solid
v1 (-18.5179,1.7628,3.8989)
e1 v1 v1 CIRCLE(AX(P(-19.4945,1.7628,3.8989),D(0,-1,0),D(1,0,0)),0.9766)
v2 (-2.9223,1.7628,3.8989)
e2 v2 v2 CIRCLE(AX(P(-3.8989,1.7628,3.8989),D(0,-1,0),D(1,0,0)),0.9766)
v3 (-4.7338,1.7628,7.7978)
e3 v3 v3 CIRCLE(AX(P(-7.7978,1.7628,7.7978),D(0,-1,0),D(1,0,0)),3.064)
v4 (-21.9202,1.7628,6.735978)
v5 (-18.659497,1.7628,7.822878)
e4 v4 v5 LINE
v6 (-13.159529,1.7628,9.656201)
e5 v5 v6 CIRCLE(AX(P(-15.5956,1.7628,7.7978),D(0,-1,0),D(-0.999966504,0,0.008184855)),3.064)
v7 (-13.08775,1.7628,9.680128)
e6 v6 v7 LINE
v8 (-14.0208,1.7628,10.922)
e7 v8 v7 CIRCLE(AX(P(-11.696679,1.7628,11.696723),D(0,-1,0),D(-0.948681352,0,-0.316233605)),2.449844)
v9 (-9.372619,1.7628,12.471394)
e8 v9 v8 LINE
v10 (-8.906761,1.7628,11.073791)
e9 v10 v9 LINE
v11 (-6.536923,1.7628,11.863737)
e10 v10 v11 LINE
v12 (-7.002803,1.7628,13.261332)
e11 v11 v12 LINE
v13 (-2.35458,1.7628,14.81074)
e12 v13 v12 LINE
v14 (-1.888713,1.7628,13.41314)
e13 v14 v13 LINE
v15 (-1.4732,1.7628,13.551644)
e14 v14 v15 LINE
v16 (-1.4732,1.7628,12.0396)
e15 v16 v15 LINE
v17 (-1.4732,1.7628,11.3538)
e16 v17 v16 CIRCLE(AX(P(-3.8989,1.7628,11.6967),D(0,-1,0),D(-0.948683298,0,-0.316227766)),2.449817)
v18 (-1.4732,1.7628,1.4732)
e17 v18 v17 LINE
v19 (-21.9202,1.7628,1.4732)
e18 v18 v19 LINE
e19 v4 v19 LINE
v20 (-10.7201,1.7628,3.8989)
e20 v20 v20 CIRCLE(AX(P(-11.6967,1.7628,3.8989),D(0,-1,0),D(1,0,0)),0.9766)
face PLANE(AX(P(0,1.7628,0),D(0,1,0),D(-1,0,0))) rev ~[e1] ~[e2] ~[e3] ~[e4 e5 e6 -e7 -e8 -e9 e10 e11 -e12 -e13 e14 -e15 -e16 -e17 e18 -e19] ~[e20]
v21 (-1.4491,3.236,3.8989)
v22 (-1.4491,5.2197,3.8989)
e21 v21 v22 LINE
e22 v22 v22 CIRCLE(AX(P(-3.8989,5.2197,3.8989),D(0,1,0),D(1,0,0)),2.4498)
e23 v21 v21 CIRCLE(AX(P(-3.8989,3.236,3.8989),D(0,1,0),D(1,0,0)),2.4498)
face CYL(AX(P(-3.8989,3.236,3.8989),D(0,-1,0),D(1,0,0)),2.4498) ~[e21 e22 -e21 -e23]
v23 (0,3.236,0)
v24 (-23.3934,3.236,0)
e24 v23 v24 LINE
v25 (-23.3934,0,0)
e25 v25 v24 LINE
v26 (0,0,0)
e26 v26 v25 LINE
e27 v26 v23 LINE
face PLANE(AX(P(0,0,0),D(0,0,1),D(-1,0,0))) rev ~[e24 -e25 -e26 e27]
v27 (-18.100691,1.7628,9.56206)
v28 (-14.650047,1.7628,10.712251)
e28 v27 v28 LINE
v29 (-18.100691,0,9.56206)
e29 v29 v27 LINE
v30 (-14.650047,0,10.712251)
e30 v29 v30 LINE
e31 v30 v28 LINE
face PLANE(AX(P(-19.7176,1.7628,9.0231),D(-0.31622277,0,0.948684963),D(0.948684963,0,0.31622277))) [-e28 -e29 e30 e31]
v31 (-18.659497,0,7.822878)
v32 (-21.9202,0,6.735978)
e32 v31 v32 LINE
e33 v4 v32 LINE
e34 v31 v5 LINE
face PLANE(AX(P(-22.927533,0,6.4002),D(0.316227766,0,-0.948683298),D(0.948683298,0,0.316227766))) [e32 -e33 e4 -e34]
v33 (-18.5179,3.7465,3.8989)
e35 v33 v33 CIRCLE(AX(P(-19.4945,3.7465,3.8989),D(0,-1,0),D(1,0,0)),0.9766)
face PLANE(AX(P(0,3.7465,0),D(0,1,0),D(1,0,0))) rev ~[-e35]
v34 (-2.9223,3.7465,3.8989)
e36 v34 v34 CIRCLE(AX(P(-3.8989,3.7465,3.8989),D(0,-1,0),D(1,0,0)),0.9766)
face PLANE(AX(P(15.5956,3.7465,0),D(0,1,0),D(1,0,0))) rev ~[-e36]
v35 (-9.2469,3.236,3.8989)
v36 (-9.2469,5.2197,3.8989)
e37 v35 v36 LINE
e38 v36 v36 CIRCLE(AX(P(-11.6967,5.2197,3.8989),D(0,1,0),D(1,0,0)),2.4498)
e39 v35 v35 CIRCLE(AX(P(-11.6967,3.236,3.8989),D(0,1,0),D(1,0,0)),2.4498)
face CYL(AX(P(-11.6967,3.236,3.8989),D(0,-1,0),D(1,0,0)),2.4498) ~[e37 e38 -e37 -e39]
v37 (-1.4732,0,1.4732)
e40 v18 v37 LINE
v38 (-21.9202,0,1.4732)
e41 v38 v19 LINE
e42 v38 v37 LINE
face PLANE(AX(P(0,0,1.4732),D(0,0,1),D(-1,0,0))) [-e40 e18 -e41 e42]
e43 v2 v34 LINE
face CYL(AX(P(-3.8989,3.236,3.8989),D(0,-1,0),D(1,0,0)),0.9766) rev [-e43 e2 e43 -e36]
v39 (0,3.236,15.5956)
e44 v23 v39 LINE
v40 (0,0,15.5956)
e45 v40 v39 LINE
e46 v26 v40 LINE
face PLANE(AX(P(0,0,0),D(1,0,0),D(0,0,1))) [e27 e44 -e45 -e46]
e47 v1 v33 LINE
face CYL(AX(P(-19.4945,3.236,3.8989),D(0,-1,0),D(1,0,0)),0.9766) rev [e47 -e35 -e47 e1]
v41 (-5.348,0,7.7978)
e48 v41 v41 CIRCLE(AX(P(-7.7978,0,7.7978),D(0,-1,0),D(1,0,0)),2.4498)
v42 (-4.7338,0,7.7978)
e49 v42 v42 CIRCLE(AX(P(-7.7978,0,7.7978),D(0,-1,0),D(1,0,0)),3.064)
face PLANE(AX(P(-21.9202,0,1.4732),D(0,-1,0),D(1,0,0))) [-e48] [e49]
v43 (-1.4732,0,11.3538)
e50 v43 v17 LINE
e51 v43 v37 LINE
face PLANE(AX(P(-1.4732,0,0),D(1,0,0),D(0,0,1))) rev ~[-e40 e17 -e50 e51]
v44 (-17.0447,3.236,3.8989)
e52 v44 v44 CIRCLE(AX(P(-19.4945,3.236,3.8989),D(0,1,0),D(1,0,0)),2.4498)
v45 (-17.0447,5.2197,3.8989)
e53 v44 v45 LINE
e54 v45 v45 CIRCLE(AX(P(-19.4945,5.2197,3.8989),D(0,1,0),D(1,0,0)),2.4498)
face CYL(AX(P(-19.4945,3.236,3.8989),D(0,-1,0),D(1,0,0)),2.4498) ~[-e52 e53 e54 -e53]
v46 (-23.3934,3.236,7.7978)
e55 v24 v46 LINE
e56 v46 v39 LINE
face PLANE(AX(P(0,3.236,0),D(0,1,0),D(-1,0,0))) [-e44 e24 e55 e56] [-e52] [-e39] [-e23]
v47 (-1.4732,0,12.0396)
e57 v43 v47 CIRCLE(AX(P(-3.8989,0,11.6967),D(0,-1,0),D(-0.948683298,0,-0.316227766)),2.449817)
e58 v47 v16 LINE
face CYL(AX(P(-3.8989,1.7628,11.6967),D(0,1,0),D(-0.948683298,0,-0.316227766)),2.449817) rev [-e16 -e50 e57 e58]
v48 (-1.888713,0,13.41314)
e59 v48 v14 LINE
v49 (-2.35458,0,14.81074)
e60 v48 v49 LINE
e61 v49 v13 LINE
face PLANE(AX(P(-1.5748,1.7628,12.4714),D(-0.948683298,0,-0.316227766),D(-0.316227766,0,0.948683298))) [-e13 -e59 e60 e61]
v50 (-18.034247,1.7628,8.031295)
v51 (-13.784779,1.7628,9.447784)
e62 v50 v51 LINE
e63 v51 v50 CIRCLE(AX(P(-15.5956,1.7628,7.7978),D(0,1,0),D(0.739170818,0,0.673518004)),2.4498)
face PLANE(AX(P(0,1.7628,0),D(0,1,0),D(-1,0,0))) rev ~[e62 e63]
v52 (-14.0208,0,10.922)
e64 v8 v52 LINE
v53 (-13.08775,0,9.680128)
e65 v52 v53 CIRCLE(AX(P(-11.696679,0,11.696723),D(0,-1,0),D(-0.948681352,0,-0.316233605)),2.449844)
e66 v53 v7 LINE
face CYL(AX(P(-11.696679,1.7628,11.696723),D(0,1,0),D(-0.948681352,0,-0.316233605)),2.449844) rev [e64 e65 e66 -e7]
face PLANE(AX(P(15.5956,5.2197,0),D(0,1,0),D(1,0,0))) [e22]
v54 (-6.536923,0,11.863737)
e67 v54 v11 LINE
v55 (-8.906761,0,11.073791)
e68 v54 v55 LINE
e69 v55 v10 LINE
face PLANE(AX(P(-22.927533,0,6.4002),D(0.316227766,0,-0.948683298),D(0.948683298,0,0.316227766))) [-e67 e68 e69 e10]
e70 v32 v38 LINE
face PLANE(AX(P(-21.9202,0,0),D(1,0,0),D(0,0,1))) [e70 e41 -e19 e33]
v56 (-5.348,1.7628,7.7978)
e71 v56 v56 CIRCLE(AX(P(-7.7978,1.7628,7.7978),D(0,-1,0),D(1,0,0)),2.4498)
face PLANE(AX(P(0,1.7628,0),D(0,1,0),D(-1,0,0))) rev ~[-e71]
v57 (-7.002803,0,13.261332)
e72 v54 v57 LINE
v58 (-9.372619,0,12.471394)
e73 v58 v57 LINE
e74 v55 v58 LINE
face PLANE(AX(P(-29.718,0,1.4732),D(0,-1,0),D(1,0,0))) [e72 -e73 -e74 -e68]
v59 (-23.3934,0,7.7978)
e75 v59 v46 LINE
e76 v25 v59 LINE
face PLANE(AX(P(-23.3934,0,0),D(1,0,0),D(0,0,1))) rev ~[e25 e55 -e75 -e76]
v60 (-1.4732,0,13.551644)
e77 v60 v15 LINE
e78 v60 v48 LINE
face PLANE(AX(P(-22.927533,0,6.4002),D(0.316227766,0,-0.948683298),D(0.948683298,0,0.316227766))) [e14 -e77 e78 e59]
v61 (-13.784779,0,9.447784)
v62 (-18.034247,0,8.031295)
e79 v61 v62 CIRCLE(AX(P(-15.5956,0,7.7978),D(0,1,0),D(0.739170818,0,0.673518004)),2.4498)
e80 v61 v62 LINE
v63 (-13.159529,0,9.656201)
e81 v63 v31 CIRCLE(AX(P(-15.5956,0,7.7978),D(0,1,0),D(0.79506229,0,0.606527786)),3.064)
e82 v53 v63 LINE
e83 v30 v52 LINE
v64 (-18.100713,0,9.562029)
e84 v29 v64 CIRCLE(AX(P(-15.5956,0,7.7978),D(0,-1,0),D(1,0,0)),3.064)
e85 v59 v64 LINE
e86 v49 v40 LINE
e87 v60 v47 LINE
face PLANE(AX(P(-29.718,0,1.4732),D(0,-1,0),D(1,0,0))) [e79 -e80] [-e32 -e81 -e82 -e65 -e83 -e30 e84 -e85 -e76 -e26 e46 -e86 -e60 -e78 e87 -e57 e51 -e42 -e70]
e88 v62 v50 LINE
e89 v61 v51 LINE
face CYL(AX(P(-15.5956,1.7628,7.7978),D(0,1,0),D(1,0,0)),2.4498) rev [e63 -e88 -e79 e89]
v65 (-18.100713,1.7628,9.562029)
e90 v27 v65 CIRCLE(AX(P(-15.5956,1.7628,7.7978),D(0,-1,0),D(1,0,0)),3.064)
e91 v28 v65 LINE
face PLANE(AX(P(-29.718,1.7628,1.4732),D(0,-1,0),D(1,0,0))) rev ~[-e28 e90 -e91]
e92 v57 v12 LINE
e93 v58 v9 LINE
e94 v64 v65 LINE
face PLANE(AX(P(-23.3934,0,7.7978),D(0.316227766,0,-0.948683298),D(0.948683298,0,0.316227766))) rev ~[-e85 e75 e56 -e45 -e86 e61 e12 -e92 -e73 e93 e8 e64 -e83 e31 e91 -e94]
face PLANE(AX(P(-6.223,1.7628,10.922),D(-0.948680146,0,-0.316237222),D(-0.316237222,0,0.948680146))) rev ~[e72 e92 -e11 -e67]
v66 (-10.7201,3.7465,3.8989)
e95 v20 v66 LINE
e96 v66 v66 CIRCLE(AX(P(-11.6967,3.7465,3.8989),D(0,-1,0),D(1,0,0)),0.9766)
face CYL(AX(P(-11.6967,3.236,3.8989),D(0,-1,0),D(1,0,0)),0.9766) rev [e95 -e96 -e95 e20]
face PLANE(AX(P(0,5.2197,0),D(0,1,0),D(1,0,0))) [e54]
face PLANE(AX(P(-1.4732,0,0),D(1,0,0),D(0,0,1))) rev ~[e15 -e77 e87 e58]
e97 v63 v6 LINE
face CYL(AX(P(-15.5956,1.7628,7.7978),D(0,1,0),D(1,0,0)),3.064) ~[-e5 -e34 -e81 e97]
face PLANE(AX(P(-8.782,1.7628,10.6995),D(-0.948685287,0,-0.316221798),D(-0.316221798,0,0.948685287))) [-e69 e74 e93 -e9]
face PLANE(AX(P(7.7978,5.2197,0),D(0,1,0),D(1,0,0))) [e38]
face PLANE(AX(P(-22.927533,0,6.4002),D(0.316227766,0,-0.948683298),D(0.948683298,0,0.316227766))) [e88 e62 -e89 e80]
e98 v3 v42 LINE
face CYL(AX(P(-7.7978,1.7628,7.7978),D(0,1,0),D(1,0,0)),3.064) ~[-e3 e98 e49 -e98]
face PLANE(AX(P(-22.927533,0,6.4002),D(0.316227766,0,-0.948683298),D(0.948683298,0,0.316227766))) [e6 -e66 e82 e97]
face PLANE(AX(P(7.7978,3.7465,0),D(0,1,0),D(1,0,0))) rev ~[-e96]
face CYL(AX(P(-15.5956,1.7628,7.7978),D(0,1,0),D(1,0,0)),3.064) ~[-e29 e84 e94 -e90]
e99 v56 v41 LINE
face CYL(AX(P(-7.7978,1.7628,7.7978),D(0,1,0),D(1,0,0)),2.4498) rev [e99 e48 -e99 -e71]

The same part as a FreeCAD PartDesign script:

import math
import FreeCAD as App
import Part
import Sketcher
from FreeCAD import Vector
Q = App.Units.Quantity


def faces_at(feature, points):
    """Names of the faces that lie closest to the given points."""
    faces = feature.Shape.Faces
    near = lambda p: min(range(len(faces)), key=lambda i: faces[i].distToShape(Part.Vertex(*p))[0])
    return sorted({f"Face{near(p) + 1}" for p in points})


def add_polygon(sketch, points):
    """Adds a closed chain of lines whose ends are joined by coincident constraints."""
    first, n = sketch.GeometryCount, len(points)
    for a, b in zip(points, points[1:] + points[:1]):
        sketch.addGeometry(Part.LineSegment(App.Vector(*a, 0), App.Vector(*b, 0)), False)
    for i in range(n):
        sketch.addConstraint(Sketcher.Constraint("Coincident", first + i, 2, first + (i + 1) % n, 1))

doc = App.newDocument("Part")
body = doc.addObject("PartDesign::Body", "Body")

# Sketch on XZ plane
sketch1 = body.newObject("Sketcher::SketchObject", "Sketch")
sketch1.AttachmentSupport = (doc.getObject("XZ_Plane"), [""])
sketch1.MapMode = "FlatFace"
add_polygon(sketch1, [(0, 16), (0, 0), (-23, 0), (-23, 8)])  # lines 0-3
sketch1.addConstraint([
    Sketcher.Constraint("Vertical", 0),
    Sketcher.Constraint("Horizontal", 1),
    Sketcher.Constraint("Vertical", 2),
    Sketcher.Constraint("Coincident", 0, 2, -1, 1),
    Sketcher.Constraint("DistanceX", 1, 2, 1, 1, Q("0.921 in")),
    Sketcher.Constraint("DistanceY", 0, 2, 0, 1, Q("0.614 in")),
    Sketcher.Constraint("DistanceY", 2, 1, 2, 2, Q("0.307 in")),
])
pad1 = body.newObject("PartDesign::Pad", "Pad")
pad1.Profile = sketch1
pad1.Length = Q("0.1274016 in")
pad1.Reversed = True

# Sketch on XZ plane
sketch2 = body.newObject("Sketcher::SketchObject", "Sketch001")
sketch2.AttachmentSupport = (doc.getObject("XZ_Plane"), [""])
sketch2.MapMode = "FlatFace"
sketch2.AttachmentOffset = App.Placement(Vector(0, 0, -0.1274016 * 25.4), App.Rotation())
sketch2.addGeometry(Part.Circle(Vector(-19.5, 3.9, 0), Vector(0, 0, 1), 2.4), False)
sketch2.addConstraint([
    Sketcher.Constraint("Diameter", 0, Q("0.1929 in")),
    Sketcher.Constraint("DistanceY", -1, 1, 0, 3, Q("0.1535 in")),
    Sketcher.Constraint("DistanceX", 0, 3, -1, 1, Q("0.7675 in")),
])
pad2 = body.newObject("PartDesign::Pad", "Pad001")
pad2.Profile = sketch2
pad2.Length = Q("0.0780984 in")
pad2.Reversed = True
doc.recompute()

linearpattern = body.newObject("PartDesign::LinearPattern", "LinearPattern")
linearpattern.Originals = [pad2]
linearpattern.Direction = (doc.getObject("X_Axis"), [""])
linearpattern.Mode = "offset"
linearpattern.Offset = Q("0.307 in")
linearpattern.Occurrences = 3
body.Tip = linearpattern
doc.recompute()

thickness = body.newObject("PartDesign::Thickness", "Thickness")
thickness.Base = (linearpattern, faces_at(linearpattern, [(-7.798, 0, 7.798)]))
thickness.Value = Q("0.058 in")
thickness.Reversed = True
thickness.Join = "Intersection"

# Sketch on XZ plane
sketch3 = body.newObject("Sketcher::SketchObject", "Sketch002")
sketch3.AttachmentSupport = (doc.getObject("XZ_Plane"), [""])
sketch3.MapMode = "FlatFace"
sketch3.AttachmentOffset = App.Placement(Vector(0, 0, -0.0694016 * 25.4), App.Rotation())
sketch3.addGeometry([
    Part.Circle(Vector(-7.8, 7.8, 0), Vector(0, 0, 1), 3.1),
    Part.Circle(Vector(-7.8, 7.8, 0), Vector(0, 0, 1), 2.4),
], False)
sketch3.addConstraint([
    Sketcher.Constraint("Coincident", 1, 3, 0, 3),
    Sketcher.Constraint("Diameter", 1, Q("0.1929 in")),
    Sketcher.Constraint("DistanceX", 0, 3, -1, 1, Q("0.307 in")),
    Sketcher.Constraint("DistanceY", -1, 1, 0, 3, Q("0.307 in")),
    Sketcher.Constraint("Diameter", 0, Q("6.128 mm")),
])
pad3 = body.newObject("PartDesign::Pad", "Pad002")
pad3.Profile = sketch3
pad3.Length = Q("0.0694016 in")
doc.recompute()

linearpattern2 = body.newObject("PartDesign::LinearPattern", "LinearPattern001")
linearpattern2.Originals = [pad3]
linearpattern2.Direction = (doc.getObject("X_Axis"), [""])
linearpattern2.Mode = "offset"
linearpattern2.Offset = Q("0.307 in")
linearpattern2.Occurrences = 2
linearpattern2.Reversed = True
body.Tip = linearpattern2

# Sketch on XZ plane
sketch4 = body.newObject("Sketcher::SketchObject", "Sketch003")
sketch4.AttachmentSupport = (doc.getObject("XZ_Plane"), [""])
sketch4.MapMode = "FlatFace"
sketch4.AttachmentOffset = App.Placement(Vector(0, 0, -0.0694016 * 25.4), App.Rotation())
sketch4.addGeometry([
    Part.LineSegment(Vector(-8.2, 16.9, 0), Vector(-6.2, 10.9, 0)),  # 0
    Part.ArcOfCircle(Part.Circle(Vector(-3.9, 11.7, 0), Vector(0, 0, 1), 2.4), math.radians(-162), math.radians(18)),  # 1
    Part.LineSegment(Vector(-1.6, 12.5, 0), Vector(-2.7, 15.9, 0)),  # 2
    Part.LineSegment(Vector(-2.7, 15.9, 0), Vector(-8.2, 16.9, 0)),  # 3
    Part.ArcOfCircle(Part.Circle(Vector(-7.8, 7.8, 0), Vector(0, 0, 1), 3.1), math.radians(109), math.radians(135)),  # 4
    Part.LineSegment(Vector(-8.8, 10.7, 0), Vector(-10.4, 15.5, 0)),  # 5
    Part.LineSegment(Vector(-10.4, 15.5, 0), Vector(-20.7, 12, 0)),  # 6
    Part.LineSegment(Vector(-20.7, 12, 0), Vector(-19.7, 9, 0)),  # 7
    Part.LineSegment(Vector(-19.7, 9, 0), Vector(-14, 10.9, 0)),  # 8
    Part.ArcOfCircle(Part.Circle(Vector(-11.7, 11.7, 0), Vector(0, 0, 1), 2.4), math.radians(-162), math.radians(-45)),  # 9
], False)
sketch4.addConstraint([
    Sketcher.Constraint("Tangent", 0, 2, 1, 1),
    Sketcher.Constraint("Tangent", 1, 2, 2, 1),
    Sketcher.Constraint("Coincident", 2, 2, 3, 1),
    Sketcher.Constraint("Coincident", 3, 2, 0, 1),
    Sketcher.Constraint("Coincident", 4, 1, 5, 1),
    Sketcher.Constraint("Coincident", 5, 2, 6, 1),
    Sketcher.Constraint("Coincident", 6, 2, 7, 1),
    Sketcher.Constraint("Coincident", 7, 2, 8, 1),
    Sketcher.Constraint("Coincident", 8, 2, 9, 1),
    Sketcher.Constraint("Tangent", 9, 2, 4, 2),
    Sketcher.Constraint("Equal", 1, 9),
    Sketcher.Constraint("Parallel", 0, 2),
    Sketcher.Constraint("Parallel", 2, 5),
    Sketcher.Constraint("Perpendicular", 5, 6),
    Sketcher.Constraint("Perpendicular", 6, 7),
    Sketcher.Constraint("Perpendicular", 7, 8),
    Sketcher.Constraint("Horizontal", 1, 3, 9, 3),
    Sketcher.Constraint("Horizontal", 0, 2, 8, 2),
    Sketcher.Constraint("DistanceX", 4, 3, -1, 1, Q("0.307 in")),
    Sketcher.Constraint("DistanceY", -1, 1, 4, 3, Q("0.307 in")),
    Sketcher.Constraint("DistanceX", 9, 3, 1, 3, Q("0.307 in")),
    Sketcher.Constraint("DistanceY", -1, 1, 0, 2, Q("0.43 in")),
    Sketcher.Constraint("Radius", 1, Q("2.4498 mm")),
    Sketcher.Constraint("Radius", 4, Q("3.064 mm")),
    Sketcher.Constraint("DistanceX", 0, 2, -1, 1, Q("0.245 in")),
    Sketcher.Constraint("DistanceX", 3, 2, -1, 1, Q("0.324 in")),
    Sketcher.Constraint("DistanceY", -1, 1, 5, 2, Q("0.609 in")),
    Sketcher.Constraint("DistanceY", 4, 1, 6, 2, Q("0.052 in")),
    Sketcher.Constraint("DistanceY", 7, 2, 6, 2, Q("0.118 in")),
    Sketcher.Constraint("Distance", 2, Q("3.5946 mm")),
])
pocket1 = body.newObject("PartDesign::Pocket", "Pocket")
pocket1.Profile = sketch4
pocket1.Length = Q("0.0694016 in")
pocket1.Reversed = True

doc.recompute()
